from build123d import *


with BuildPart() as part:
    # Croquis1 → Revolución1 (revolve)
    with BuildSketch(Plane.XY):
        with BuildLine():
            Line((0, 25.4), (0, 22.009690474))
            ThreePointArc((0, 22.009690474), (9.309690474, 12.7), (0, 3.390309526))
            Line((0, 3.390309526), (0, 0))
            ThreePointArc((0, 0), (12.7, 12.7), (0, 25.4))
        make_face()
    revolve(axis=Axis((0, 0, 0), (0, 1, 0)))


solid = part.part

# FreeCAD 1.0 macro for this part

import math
import FreeCAD as App
import Part
import Sketcher

V = App.Vector
Q = App.Units.Quantity

doc = App.newDocument("Part")
body = doc.addObject("PartDesign::Body", "Body")

sketch1 = doc.addObject("Sketcher::SketchObject", "Sketch")
body.addObject(sketch1)
sketch1.AttachmentSupport = (doc.XY_Plane, [""])
sketch1.MapMode = "FlatFace"
sketch1.addGeometry(Part.LineSegment(V(0, 25.4, 0), V(0, 22.00969, 0)), False)
sketch1.addGeometry(Part.ArcOfCircle(Part.Circle(V(0, 12.7, 0), V(0, 0, 1), 9.30969), math.radians(-90), math.radians(90)), False)
sketch1.addGeometry(Part.LineSegment(V(0, 3.39031, 0), V(0, 0, 0)), False)
sketch1.addGeometry(Part.ArcOfCircle(Part.Circle(V(0, 12.7, 0), V(0, 0, 1), 12.7), math.radians(-90), math.radians(90)), False)
sketch1.addConstraint(Sketcher.Constraint("Coincident", 0, 2, 1, 2))
sketch1.addConstraint(Sketcher.Constraint("Coincident", 1, 1, 2, 1))
sketch1.addConstraint(Sketcher.Constraint("Coincident", 2, 2, 3, 1))
sketch1.addConstraint(Sketcher.Constraint("Coincident", 3, 2, 0, 1))
sketch1.addConstraint(Sketcher.Constraint("Vertical", 0))
sketch1.addConstraint(Sketcher.Constraint("Vertical", 2))
sketch1.addConstraint(Sketcher.Constraint("Coincident", 2, 2, -1, 1))
sketch1.addConstraint(Sketcher.Constraint("Coincident", 3, 3, 1, 3))
sketch1.addConstraint(Sketcher.Constraint("PointOnObject", 1, 3, -2))
sketch1.addConstraint(Sketcher.Constraint("PointOnObject", 0, 2, -2))
sketch1.addConstraint(Sketcher.Constraint("Radius", 3, Q("0.5 in")))
sketch1.addConstraint(Sketcher.Constraint("Radius", 1, Q("9.30969 mm")))
revolution = doc.addObject("PartDesign::Revolution", "Revolution")
body.addObject(revolution)
revolution.Profile = sketch1
revolution.ReferenceAxis = (sketch1, ["V_Axis"])
revolution.Angle = 360

doc.recompute()
